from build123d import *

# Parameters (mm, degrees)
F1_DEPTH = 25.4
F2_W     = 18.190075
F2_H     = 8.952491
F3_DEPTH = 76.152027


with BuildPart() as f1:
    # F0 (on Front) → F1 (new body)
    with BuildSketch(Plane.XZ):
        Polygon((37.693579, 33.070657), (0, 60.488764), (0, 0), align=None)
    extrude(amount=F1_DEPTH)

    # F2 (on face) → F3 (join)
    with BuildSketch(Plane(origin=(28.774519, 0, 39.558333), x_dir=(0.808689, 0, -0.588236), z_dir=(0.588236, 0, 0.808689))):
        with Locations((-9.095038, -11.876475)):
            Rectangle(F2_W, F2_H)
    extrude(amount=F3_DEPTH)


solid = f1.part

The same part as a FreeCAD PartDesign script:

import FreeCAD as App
import Part
import Sketcher
from FreeCAD import Vector
Q = App.Units.Quantity

doc = App.newDocument("Part")
body = doc.addObject("PartDesign::Body", "Body")

# Sketch on XZ plane
sketch1 = doc.addObject("Sketcher::SketchObject", "Sketch")
body.addObject(sketch1)
sketch1.AttachmentSupport = (doc.XZ_Plane, [""])
sketch1.MapMode = "FlatFace"
sketch1.addGeometry(Part.LineSegment(Vector(37.693579, 33.070657, 0), Vector(0, 60.488764, 0)), False)
sketch1.addGeometry(Part.LineSegment(Vector(0, 60.488764, 0), Vector(0, 0, 0)), False)
sketch1.addGeometry(Part.LineSegment(Vector(0, 0, 0), Vector(37.693579, 33.070657, 0)), False)
sketch1.addConstraint(Sketcher.Constraint("Coincident", 0, 2, 1, 1))
sketch1.addConstraint(Sketcher.Constraint("Coincident", 1, 2, 2, 1))
sketch1.addConstraint(Sketcher.Constraint("Coincident", 2, 2, 0, 1))
sketch1.addConstraint(Sketcher.Constraint("Vertical", 1))
sketch1.addConstraint(Sketcher.Constraint("Coincident", 1, 2, -1, 1))
sketch1.addConstraint(Sketcher.Constraint("DistanceY", 1, 2, 1, 1, 60.488764))
sketch1.addConstraint(Sketcher.Constraint("DistanceX", -1, 1, 2, 2, 37.693579))
sketch1.addConstraint(Sketcher.Constraint("Distance", 0, 46.610712))
pad1 = doc.addObject("PartDesign::Pad", "Pad")
body.addObject(pad1)
pad1.Profile = sketch1
pad1.Length = Q("1 in")

# Sketch on an angled plane
sketch2 = doc.addObject("Sketcher::SketchObject", "Sketch001")
body.addObject(sketch2)
sketch2.Placement = App.Placement(Vector(28.774519, 0, 39.558333), App.Rotation(Vector(0.808689206, 0, -0.58823615), Vector(0, 1, 0), Vector(0.58823615, 0, 0.808689206), "ZXY"))
sketch2.addGeometry(Part.LineSegment(Vector(-18.190076, -7.40023, 0), Vector(-18.190076, -16.352721, 0)), False)
sketch2.addGeometry(Part.LineSegment(Vector(-18.190076, -16.352721, 0), Vector(0, -16.352721, 0)), False)
sketch2.addGeometry(Part.LineSegment(Vector(0, -16.352721, 0), Vector(0, -7.40023, 0)), False)
sketch2.addGeometry(Part.LineSegment(Vector(0, -7.40023, 0), Vector(-18.190076, -7.40023, 0)), False)
sketch2.addConstraint(Sketcher.Constraint("Coincident", 0, 2, 1, 1))
sketch2.addConstraint(Sketcher.Constraint("Coincident", 1, 2, 2, 1))
sketch2.addConstraint(Sketcher.Constraint("Coincident", 2, 2, 3, 1))
sketch2.addConstraint(Sketcher.Constraint("Coincident", 3, 2, 0, 1))
sketch2.addConstraint(Sketcher.Constraint("Vertical", 0))
sketch2.addConstraint(Sketcher.Constraint("Horizontal", 1))
sketch2.addConstraint(Sketcher.Constraint("Vertical", 2))
sketch2.addConstraint(Sketcher.Constraint("Horizontal", 3))
sketch2.addConstraint(Sketcher.Constraint("PointOnObject", 1, 2, -2))
sketch2.addConstraint(Sketcher.Constraint("DistanceY", 0, 2, 0, 1, 8.952491))
sketch2.addConstraint(Sketcher.Constraint("DistanceX", 1, 1, 1, 2, 18.190075))
sketch2.addConstraint(Sketcher.Constraint("DistanceY", 0, 2, -1, 1, 16.352721))
pad2 = doc.addObject("PartDesign::Pad", "Pad001")
body.addObject(pad2)
pad2.Profile = sketch2
pad2.Length = 76.152027

doc.recompute()
